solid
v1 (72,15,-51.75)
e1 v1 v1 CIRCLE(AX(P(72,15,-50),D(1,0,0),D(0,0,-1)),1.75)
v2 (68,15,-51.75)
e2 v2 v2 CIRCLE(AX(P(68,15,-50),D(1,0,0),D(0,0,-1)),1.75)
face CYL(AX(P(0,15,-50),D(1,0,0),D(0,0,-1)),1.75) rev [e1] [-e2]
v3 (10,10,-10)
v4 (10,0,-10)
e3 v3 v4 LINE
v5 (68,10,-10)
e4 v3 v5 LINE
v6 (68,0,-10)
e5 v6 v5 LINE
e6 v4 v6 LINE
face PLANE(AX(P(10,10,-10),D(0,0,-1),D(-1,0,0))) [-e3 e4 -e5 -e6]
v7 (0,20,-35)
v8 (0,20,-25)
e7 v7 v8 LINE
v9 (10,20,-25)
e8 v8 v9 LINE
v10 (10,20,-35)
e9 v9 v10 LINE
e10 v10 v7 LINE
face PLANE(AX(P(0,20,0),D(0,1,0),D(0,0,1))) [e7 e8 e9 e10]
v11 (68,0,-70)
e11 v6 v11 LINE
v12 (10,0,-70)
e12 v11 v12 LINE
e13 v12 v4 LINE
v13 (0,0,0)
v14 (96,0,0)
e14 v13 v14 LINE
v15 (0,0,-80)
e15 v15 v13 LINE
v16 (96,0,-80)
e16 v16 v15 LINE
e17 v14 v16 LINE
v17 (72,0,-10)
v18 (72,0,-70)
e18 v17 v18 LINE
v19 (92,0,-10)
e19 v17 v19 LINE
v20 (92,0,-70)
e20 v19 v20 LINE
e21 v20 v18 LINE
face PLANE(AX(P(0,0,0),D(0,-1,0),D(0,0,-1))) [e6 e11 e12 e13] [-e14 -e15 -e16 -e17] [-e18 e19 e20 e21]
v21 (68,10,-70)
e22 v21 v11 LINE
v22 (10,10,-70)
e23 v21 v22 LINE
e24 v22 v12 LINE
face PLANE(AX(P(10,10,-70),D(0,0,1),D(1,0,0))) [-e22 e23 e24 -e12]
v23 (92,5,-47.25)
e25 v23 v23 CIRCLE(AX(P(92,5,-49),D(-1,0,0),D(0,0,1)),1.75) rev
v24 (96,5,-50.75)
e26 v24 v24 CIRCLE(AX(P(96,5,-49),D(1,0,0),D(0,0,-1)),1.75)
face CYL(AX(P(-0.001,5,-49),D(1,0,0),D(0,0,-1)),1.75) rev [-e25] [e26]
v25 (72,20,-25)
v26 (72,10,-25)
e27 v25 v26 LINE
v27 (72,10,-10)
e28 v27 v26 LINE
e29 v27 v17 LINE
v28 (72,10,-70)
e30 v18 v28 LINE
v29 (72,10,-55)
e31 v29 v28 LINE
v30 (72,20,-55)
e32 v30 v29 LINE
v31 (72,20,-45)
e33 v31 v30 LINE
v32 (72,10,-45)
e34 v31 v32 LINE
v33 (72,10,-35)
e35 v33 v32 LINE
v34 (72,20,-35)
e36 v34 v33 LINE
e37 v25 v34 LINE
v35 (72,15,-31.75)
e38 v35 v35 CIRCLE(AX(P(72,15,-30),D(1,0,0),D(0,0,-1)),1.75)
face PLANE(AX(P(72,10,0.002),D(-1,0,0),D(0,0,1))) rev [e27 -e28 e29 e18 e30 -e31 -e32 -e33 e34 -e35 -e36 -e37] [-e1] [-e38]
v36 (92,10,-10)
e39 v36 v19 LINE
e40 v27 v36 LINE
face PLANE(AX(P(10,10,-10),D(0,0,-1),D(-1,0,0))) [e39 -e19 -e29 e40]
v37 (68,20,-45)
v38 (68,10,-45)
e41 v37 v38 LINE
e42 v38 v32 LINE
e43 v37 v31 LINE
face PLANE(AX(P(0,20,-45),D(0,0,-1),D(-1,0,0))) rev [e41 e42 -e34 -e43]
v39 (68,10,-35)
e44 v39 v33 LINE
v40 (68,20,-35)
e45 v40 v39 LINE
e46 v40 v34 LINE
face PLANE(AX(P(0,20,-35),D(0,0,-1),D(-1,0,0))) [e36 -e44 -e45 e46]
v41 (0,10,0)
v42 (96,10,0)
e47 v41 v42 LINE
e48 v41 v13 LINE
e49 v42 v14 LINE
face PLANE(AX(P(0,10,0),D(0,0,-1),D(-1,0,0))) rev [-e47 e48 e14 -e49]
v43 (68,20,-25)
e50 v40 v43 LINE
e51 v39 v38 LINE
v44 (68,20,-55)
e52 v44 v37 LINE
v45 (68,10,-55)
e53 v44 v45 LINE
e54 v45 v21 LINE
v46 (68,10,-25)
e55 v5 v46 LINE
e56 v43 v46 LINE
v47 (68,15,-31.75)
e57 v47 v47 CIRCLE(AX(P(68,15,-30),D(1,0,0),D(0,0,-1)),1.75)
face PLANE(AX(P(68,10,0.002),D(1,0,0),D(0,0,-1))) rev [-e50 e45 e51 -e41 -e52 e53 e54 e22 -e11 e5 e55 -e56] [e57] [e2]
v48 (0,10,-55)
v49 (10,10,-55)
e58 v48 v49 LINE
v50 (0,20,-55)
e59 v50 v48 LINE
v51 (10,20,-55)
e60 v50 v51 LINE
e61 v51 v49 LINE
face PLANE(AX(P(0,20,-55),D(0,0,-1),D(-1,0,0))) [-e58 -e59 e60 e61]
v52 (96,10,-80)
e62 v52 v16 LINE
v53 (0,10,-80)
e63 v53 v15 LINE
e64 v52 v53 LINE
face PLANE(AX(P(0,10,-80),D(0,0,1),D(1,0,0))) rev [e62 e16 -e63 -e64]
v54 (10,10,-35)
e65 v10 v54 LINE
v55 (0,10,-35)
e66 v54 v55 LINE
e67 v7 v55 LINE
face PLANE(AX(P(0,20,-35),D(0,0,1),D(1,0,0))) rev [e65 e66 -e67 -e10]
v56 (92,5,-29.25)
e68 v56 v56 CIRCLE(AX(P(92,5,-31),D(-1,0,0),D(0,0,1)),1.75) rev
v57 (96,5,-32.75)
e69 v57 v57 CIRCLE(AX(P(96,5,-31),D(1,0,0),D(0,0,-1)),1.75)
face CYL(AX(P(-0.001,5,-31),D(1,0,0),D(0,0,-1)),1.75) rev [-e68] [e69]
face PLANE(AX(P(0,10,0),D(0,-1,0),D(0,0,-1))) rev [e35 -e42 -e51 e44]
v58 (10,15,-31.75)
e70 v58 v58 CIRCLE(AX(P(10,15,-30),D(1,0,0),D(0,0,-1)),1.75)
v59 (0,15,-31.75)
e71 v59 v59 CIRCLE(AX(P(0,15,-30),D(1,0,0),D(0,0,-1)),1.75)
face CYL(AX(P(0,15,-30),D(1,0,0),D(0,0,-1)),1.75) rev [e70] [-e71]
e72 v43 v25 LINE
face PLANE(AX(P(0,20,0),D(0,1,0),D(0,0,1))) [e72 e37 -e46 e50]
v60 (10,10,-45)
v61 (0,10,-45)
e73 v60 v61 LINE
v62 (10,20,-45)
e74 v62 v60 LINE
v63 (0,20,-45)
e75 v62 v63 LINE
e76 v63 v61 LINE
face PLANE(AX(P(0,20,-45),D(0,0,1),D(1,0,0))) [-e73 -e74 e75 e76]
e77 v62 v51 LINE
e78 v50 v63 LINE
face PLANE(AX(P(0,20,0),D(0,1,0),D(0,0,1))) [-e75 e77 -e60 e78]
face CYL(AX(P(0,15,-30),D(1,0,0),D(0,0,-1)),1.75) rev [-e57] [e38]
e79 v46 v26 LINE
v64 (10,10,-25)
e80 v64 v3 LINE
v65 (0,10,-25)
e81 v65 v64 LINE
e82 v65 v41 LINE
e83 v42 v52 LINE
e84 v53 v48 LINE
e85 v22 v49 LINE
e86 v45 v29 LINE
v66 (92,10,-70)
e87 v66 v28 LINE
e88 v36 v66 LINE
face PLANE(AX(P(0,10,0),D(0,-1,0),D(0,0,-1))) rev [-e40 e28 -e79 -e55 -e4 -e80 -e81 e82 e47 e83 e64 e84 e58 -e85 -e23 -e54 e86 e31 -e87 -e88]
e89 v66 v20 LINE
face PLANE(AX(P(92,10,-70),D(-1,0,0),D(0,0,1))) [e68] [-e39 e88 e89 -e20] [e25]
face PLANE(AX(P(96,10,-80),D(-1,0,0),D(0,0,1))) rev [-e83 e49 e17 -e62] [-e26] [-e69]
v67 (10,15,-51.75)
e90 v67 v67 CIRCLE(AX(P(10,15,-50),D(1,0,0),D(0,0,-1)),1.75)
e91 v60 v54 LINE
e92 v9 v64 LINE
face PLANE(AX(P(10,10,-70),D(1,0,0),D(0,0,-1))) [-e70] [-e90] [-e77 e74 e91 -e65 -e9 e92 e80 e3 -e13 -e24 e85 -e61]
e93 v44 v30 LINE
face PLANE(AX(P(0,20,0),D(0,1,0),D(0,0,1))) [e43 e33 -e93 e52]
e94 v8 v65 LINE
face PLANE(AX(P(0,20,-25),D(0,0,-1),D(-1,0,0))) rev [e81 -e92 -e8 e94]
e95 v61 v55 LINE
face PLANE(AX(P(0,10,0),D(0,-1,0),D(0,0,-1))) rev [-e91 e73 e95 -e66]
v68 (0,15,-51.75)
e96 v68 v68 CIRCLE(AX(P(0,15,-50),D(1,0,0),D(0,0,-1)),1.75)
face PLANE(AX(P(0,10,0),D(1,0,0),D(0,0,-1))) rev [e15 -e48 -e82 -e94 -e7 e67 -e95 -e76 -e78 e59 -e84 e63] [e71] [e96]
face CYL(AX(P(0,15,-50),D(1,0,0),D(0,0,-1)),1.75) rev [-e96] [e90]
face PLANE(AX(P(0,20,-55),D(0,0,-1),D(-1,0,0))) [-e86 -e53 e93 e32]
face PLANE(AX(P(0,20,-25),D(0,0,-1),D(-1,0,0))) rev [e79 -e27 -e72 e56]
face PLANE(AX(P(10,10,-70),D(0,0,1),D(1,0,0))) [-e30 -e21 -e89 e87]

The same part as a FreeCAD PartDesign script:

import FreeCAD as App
import Part
import Sketcher
Q = App.Units.Quantity


def add_polygon(sketch, points):
    """Adds a closed chain of lines whose ends are joined by coincident constraints."""
    first, n = sketch.GeometryCount, len(points)
    for a, b in zip(points, points[1:] + points[:1]):
        sketch.addGeometry(Part.LineSegment(App.Vector(*a, 0), App.Vector(*b, 0)), False)
    for i in range(n):
        sketch.addConstraint(Sketcher.Constraint("Coincident", first + i, 2, first + (i + 1) % n, 1))

doc = App.newDocument("Part")
body = doc.addObject("PartDesign::Body", "Body")

sketch1 = body.newObject("Sketcher::SketchObject", "Sketch")
sketch1.AttachmentSupport = (doc.getObject("XZ_Plane"), [""])
sketch1.MapMode = "FlatFace"
add_polygon(sketch1, [(0, -80), (0, 0), (96, 0), (96, -80)])
add_polygon(sketch1, [(92, -10), (10, -10), (10, -70), (92, -70)])
sketch1.addConstraint([
    Sketcher.Constraint("Vertical", 0),
    Sketcher.Constraint("Horizontal", 1),
    Sketcher.Constraint("Vertical", 2),
    Sketcher.Constraint("Horizontal", 3),
    Sketcher.Constraint("Horizontal", 4),
    Sketcher.Constraint("Vertical", 5),
    Sketcher.Constraint("Horizontal", 6),
    Sketcher.Constraint("Vertical", 7),
    Sketcher.Constraint("Coincident", 0, 2, -1, 1),
    Sketcher.Constraint("DistanceX", 1, 1, 1, 2, Q("96 mm")),
    Sketcher.Constraint("DistanceX", 4, 2, 4, 1, Q("82 mm")),
    Sketcher.Constraint("DistanceY", 0, 1, 0, 2, Q("80 mm")),
    Sketcher.Constraint("DistanceY", 5, 2, 5, 1, Q("60 mm")),
    Sketcher.Constraint("DistanceX", -1, 1, 4, 2, Q("10 mm")),
    Sketcher.Constraint("DistanceY", 4, 2, -1, 1, Q("10 mm")),
])
pad1 = body.newObject("PartDesign::Pad", "Pad")
pad1.Profile = sketch1
pad1.Length = 10
pad1.Reversed = True

sketch2 = body.newObject("Sketcher::SketchObject", "Sketch001")
sketch2.AttachmentSupport = (doc.getObject("XY_Plane"), [""])
sketch2.MapMode = "FlatFace"
sketch2.AttachmentOffset = App.Placement(App.Vector(0, 0, -70), App.Rotation())
add_polygon(sketch2, [(68, 10), (68, 0), (72, 0), (72, 10)])
sketch2.addConstraint([
    Sketcher.Constraint("Vertical", 0),
    Sketcher.Constraint("Horizontal", 1),
    Sketcher.Constraint("Vertical", 2),
    Sketcher.Constraint("Horizontal", 3),
    Sketcher.Constraint("PointOnObject", 0, 2, -1),
    Sketcher.Constraint("DistanceX", 1, 1, 1, 2, Q("4 mm")),
    Sketcher.Constraint("DistanceY", 0, 2, 0, 1, Q("10 mm")),
    Sketcher.Constraint("DistanceX", -1, 1, 0, 2, Q("68 mm")),
])
pad2 = body.newObject("PartDesign::Pad", "Pad001")
pad2.Profile = sketch2
pad2.Type = "UpToFirst"

sketch3 = body.newObject("Sketcher::SketchObject", "Sketch002")
sketch3.AttachmentSupport = (doc.getObject("XZ_Plane"), [""])
sketch3.MapMode = "FlatFace"
sketch3.AttachmentOffset = App.Placement(App.Vector(0, 0, -10), App.Rotation())
add_polygon(sketch3, [(0, -55), (0, -45), (10, -45), (10, -55)])
add_polygon(sketch3, [(0, -35), (0, -25), (10, -25), (10, -35)])
add_polygon(sketch3, [(68, -55), (68, -45), (72, -45), (72, -55)])
add_polygon(sketch3, [(68, -35), (68, -25), (72, -25), (72, -35)])
sketch3.addConstraint([
    Sketcher.Constraint("Vertical", 0),
    Sketcher.Constraint("Horizontal", 1),
    Sketcher.Constraint("Vertical", 2),
    Sketcher.Constraint("Horizontal", 3),
    Sketcher.Constraint("Vertical", 4),
    Sketcher.Constraint("Horizontal", 5),
    Sketcher.Constraint("Vertical", 6),
    Sketcher.Constraint("Horizontal", 7),
    Sketcher.Constraint("Vertical", 8),
    Sketcher.Constraint("Horizontal", 9),
    Sketcher.Constraint("Vertical", 10),
    Sketcher.Constraint("Horizontal", 11),
    Sketcher.Constraint("Vertical", 12),
    Sketcher.Constraint("Horizontal", 13),
    Sketcher.Constraint("Vertical", 14),
    Sketcher.Constraint("Horizontal", 15),
    Sketcher.Constraint("PointOnObject", 0, 2, -2),
    Sketcher.Constraint("PointOnObject", 4, 2, -2),
    Sketcher.Constraint("Horizontal", 1, 2, 8, 2),
    Sketcher.Constraint("Horizontal", 3, 2, 10, 2),
    Sketcher.Constraint("Horizontal", 5, 2, 12, 2),
    Sketcher.Constraint("Horizontal", 7, 2, 14, 2),
    Sketcher.Constraint("Vertical", 2, 2, 5, 2),
    Sketcher.Constraint("Vertical", 11, 2, 12, 2),
    Sketcher.Constraint("Vertical", 10, 2, 13, 2),
    Sketcher.Constraint("Equal", 7, 0),
    Sketcher.Constraint("Equal", 2, 4),
    Sketcher.Constraint("DistanceX", 1, 1, 1, 2, Q("10 mm")),
    Sketcher.Constraint("DistanceX", 9, 1, 9, 2, Q("4 mm")),
    Sketcher.Constraint("DistanceY", 0, 2, -1, 1, Q("45 mm")),
    Sketcher.Constraint("DistanceY", 4, 2, -1, 1, Q("25 mm")),
    Sketcher.Constraint("DistanceX", -1, 1, 8, 2, Q("68 mm")),
])
pad3 = body.newObject("PartDesign::Pad", "Pad002")
pad3.Profile = sketch3
pad3.Length = 10
pad3.Reversed = True

sketch4 = body.newObject("Sketcher::SketchObject", "Sketch003")
sketch4.AttachmentSupport = (doc.getObject("YZ_Plane"), [""])
sketch4.MapMode = "FlatFace"
sketch4.AttachmentOffset = App.Placement(App.Vector(0, 0, 72), App.Rotation())
sketch4.addGeometry([
    Part.Circle(App.Vector(15, -30, 0), App.Vector(0, 0, 1), 1.8),
    Part.Circle(App.Vector(15, -50, 0), App.Vector(0, 0, 1), 1.8),
], False)
sketch4.addConstraint([
    Sketcher.Constraint("Equal", 0, 1),
    Sketcher.Constraint("Vertical", 0, 3, 1, 3),
    Sketcher.Constraint("Diameter", 0, Q("3.5 mm")),
    Sketcher.Constraint("DistanceX", -1, 1, 0, 3, Q("15 mm")),
    Sketcher.Constraint("DistanceY", 0, 3, -1, 1, Q("30 mm")),
    Sketcher.Constraint("DistanceY", 1, 3, -1, 1, Q("50 mm")),
])
pocket1 = body.newObject("PartDesign::Pocket", "Pocket")
pocket1.Profile = sketch4
pocket1.Type = "ThroughAll"

sketch5 = body.newObject("Sketcher::SketchObject", "Sketch004")
sketch5.AttachmentSupport = (doc.getObject("YZ_Plane"), [""])
sketch5.MapMode = "FlatFace"
sketch5.AttachmentOffset = App.Placement(App.Vector(0, 0, 96), App.Rotation())
sketch5.addGeometry(Part.Circle(App.Vector(5, -31, 0), App.Vector(0, 0, 1), 1.8), False)
sketch5.addConstraint([
    Sketcher.Constraint("Diameter", 0, Q("3.5 mm")),
    Sketcher.Constraint("DistanceX", -1, 1, 0, 3, Q("5 mm")),
    Sketcher.Constraint("DistanceY", 0, 3, -1, 1, Q("31 mm")),
])
pocket2 = body.newObject("PartDesign::Pocket", "Pocket001")
pocket2.Profile = sketch5
pocket2.Type = "UpToFirst"

sketch6 = body.newObject("Sketcher::SketchObject", "Sketch005")
sketch6.AttachmentSupport = (doc.getObject("YZ_Plane"), [""])
sketch6.MapMode = "FlatFace"
sketch6.AttachmentOffset = App.Placement(App.Vector(0, 0, 96), App.Rotation())
sketch6.addGeometry(Part.Circle(App.Vector(5, -49, 0), App.Vector(0, 0, 1), 1.8), False)
sketch6.addConstraint([
    Sketcher.Constraint("Diameter", 0, Q("3.5 mm")),
    Sketcher.Constraint("DistanceX", -1, 1, 0, 3, Q("5 mm")),
    Sketcher.Constraint("DistanceY", 0, 3, -1, 1, Q("49 mm")),
])
pocket3 = body.newObject("PartDesign::Pocket", "Pocket002")
pocket3.Profile = sketch6
pocket3.Type = "UpToFirst"

doc.recompute()
